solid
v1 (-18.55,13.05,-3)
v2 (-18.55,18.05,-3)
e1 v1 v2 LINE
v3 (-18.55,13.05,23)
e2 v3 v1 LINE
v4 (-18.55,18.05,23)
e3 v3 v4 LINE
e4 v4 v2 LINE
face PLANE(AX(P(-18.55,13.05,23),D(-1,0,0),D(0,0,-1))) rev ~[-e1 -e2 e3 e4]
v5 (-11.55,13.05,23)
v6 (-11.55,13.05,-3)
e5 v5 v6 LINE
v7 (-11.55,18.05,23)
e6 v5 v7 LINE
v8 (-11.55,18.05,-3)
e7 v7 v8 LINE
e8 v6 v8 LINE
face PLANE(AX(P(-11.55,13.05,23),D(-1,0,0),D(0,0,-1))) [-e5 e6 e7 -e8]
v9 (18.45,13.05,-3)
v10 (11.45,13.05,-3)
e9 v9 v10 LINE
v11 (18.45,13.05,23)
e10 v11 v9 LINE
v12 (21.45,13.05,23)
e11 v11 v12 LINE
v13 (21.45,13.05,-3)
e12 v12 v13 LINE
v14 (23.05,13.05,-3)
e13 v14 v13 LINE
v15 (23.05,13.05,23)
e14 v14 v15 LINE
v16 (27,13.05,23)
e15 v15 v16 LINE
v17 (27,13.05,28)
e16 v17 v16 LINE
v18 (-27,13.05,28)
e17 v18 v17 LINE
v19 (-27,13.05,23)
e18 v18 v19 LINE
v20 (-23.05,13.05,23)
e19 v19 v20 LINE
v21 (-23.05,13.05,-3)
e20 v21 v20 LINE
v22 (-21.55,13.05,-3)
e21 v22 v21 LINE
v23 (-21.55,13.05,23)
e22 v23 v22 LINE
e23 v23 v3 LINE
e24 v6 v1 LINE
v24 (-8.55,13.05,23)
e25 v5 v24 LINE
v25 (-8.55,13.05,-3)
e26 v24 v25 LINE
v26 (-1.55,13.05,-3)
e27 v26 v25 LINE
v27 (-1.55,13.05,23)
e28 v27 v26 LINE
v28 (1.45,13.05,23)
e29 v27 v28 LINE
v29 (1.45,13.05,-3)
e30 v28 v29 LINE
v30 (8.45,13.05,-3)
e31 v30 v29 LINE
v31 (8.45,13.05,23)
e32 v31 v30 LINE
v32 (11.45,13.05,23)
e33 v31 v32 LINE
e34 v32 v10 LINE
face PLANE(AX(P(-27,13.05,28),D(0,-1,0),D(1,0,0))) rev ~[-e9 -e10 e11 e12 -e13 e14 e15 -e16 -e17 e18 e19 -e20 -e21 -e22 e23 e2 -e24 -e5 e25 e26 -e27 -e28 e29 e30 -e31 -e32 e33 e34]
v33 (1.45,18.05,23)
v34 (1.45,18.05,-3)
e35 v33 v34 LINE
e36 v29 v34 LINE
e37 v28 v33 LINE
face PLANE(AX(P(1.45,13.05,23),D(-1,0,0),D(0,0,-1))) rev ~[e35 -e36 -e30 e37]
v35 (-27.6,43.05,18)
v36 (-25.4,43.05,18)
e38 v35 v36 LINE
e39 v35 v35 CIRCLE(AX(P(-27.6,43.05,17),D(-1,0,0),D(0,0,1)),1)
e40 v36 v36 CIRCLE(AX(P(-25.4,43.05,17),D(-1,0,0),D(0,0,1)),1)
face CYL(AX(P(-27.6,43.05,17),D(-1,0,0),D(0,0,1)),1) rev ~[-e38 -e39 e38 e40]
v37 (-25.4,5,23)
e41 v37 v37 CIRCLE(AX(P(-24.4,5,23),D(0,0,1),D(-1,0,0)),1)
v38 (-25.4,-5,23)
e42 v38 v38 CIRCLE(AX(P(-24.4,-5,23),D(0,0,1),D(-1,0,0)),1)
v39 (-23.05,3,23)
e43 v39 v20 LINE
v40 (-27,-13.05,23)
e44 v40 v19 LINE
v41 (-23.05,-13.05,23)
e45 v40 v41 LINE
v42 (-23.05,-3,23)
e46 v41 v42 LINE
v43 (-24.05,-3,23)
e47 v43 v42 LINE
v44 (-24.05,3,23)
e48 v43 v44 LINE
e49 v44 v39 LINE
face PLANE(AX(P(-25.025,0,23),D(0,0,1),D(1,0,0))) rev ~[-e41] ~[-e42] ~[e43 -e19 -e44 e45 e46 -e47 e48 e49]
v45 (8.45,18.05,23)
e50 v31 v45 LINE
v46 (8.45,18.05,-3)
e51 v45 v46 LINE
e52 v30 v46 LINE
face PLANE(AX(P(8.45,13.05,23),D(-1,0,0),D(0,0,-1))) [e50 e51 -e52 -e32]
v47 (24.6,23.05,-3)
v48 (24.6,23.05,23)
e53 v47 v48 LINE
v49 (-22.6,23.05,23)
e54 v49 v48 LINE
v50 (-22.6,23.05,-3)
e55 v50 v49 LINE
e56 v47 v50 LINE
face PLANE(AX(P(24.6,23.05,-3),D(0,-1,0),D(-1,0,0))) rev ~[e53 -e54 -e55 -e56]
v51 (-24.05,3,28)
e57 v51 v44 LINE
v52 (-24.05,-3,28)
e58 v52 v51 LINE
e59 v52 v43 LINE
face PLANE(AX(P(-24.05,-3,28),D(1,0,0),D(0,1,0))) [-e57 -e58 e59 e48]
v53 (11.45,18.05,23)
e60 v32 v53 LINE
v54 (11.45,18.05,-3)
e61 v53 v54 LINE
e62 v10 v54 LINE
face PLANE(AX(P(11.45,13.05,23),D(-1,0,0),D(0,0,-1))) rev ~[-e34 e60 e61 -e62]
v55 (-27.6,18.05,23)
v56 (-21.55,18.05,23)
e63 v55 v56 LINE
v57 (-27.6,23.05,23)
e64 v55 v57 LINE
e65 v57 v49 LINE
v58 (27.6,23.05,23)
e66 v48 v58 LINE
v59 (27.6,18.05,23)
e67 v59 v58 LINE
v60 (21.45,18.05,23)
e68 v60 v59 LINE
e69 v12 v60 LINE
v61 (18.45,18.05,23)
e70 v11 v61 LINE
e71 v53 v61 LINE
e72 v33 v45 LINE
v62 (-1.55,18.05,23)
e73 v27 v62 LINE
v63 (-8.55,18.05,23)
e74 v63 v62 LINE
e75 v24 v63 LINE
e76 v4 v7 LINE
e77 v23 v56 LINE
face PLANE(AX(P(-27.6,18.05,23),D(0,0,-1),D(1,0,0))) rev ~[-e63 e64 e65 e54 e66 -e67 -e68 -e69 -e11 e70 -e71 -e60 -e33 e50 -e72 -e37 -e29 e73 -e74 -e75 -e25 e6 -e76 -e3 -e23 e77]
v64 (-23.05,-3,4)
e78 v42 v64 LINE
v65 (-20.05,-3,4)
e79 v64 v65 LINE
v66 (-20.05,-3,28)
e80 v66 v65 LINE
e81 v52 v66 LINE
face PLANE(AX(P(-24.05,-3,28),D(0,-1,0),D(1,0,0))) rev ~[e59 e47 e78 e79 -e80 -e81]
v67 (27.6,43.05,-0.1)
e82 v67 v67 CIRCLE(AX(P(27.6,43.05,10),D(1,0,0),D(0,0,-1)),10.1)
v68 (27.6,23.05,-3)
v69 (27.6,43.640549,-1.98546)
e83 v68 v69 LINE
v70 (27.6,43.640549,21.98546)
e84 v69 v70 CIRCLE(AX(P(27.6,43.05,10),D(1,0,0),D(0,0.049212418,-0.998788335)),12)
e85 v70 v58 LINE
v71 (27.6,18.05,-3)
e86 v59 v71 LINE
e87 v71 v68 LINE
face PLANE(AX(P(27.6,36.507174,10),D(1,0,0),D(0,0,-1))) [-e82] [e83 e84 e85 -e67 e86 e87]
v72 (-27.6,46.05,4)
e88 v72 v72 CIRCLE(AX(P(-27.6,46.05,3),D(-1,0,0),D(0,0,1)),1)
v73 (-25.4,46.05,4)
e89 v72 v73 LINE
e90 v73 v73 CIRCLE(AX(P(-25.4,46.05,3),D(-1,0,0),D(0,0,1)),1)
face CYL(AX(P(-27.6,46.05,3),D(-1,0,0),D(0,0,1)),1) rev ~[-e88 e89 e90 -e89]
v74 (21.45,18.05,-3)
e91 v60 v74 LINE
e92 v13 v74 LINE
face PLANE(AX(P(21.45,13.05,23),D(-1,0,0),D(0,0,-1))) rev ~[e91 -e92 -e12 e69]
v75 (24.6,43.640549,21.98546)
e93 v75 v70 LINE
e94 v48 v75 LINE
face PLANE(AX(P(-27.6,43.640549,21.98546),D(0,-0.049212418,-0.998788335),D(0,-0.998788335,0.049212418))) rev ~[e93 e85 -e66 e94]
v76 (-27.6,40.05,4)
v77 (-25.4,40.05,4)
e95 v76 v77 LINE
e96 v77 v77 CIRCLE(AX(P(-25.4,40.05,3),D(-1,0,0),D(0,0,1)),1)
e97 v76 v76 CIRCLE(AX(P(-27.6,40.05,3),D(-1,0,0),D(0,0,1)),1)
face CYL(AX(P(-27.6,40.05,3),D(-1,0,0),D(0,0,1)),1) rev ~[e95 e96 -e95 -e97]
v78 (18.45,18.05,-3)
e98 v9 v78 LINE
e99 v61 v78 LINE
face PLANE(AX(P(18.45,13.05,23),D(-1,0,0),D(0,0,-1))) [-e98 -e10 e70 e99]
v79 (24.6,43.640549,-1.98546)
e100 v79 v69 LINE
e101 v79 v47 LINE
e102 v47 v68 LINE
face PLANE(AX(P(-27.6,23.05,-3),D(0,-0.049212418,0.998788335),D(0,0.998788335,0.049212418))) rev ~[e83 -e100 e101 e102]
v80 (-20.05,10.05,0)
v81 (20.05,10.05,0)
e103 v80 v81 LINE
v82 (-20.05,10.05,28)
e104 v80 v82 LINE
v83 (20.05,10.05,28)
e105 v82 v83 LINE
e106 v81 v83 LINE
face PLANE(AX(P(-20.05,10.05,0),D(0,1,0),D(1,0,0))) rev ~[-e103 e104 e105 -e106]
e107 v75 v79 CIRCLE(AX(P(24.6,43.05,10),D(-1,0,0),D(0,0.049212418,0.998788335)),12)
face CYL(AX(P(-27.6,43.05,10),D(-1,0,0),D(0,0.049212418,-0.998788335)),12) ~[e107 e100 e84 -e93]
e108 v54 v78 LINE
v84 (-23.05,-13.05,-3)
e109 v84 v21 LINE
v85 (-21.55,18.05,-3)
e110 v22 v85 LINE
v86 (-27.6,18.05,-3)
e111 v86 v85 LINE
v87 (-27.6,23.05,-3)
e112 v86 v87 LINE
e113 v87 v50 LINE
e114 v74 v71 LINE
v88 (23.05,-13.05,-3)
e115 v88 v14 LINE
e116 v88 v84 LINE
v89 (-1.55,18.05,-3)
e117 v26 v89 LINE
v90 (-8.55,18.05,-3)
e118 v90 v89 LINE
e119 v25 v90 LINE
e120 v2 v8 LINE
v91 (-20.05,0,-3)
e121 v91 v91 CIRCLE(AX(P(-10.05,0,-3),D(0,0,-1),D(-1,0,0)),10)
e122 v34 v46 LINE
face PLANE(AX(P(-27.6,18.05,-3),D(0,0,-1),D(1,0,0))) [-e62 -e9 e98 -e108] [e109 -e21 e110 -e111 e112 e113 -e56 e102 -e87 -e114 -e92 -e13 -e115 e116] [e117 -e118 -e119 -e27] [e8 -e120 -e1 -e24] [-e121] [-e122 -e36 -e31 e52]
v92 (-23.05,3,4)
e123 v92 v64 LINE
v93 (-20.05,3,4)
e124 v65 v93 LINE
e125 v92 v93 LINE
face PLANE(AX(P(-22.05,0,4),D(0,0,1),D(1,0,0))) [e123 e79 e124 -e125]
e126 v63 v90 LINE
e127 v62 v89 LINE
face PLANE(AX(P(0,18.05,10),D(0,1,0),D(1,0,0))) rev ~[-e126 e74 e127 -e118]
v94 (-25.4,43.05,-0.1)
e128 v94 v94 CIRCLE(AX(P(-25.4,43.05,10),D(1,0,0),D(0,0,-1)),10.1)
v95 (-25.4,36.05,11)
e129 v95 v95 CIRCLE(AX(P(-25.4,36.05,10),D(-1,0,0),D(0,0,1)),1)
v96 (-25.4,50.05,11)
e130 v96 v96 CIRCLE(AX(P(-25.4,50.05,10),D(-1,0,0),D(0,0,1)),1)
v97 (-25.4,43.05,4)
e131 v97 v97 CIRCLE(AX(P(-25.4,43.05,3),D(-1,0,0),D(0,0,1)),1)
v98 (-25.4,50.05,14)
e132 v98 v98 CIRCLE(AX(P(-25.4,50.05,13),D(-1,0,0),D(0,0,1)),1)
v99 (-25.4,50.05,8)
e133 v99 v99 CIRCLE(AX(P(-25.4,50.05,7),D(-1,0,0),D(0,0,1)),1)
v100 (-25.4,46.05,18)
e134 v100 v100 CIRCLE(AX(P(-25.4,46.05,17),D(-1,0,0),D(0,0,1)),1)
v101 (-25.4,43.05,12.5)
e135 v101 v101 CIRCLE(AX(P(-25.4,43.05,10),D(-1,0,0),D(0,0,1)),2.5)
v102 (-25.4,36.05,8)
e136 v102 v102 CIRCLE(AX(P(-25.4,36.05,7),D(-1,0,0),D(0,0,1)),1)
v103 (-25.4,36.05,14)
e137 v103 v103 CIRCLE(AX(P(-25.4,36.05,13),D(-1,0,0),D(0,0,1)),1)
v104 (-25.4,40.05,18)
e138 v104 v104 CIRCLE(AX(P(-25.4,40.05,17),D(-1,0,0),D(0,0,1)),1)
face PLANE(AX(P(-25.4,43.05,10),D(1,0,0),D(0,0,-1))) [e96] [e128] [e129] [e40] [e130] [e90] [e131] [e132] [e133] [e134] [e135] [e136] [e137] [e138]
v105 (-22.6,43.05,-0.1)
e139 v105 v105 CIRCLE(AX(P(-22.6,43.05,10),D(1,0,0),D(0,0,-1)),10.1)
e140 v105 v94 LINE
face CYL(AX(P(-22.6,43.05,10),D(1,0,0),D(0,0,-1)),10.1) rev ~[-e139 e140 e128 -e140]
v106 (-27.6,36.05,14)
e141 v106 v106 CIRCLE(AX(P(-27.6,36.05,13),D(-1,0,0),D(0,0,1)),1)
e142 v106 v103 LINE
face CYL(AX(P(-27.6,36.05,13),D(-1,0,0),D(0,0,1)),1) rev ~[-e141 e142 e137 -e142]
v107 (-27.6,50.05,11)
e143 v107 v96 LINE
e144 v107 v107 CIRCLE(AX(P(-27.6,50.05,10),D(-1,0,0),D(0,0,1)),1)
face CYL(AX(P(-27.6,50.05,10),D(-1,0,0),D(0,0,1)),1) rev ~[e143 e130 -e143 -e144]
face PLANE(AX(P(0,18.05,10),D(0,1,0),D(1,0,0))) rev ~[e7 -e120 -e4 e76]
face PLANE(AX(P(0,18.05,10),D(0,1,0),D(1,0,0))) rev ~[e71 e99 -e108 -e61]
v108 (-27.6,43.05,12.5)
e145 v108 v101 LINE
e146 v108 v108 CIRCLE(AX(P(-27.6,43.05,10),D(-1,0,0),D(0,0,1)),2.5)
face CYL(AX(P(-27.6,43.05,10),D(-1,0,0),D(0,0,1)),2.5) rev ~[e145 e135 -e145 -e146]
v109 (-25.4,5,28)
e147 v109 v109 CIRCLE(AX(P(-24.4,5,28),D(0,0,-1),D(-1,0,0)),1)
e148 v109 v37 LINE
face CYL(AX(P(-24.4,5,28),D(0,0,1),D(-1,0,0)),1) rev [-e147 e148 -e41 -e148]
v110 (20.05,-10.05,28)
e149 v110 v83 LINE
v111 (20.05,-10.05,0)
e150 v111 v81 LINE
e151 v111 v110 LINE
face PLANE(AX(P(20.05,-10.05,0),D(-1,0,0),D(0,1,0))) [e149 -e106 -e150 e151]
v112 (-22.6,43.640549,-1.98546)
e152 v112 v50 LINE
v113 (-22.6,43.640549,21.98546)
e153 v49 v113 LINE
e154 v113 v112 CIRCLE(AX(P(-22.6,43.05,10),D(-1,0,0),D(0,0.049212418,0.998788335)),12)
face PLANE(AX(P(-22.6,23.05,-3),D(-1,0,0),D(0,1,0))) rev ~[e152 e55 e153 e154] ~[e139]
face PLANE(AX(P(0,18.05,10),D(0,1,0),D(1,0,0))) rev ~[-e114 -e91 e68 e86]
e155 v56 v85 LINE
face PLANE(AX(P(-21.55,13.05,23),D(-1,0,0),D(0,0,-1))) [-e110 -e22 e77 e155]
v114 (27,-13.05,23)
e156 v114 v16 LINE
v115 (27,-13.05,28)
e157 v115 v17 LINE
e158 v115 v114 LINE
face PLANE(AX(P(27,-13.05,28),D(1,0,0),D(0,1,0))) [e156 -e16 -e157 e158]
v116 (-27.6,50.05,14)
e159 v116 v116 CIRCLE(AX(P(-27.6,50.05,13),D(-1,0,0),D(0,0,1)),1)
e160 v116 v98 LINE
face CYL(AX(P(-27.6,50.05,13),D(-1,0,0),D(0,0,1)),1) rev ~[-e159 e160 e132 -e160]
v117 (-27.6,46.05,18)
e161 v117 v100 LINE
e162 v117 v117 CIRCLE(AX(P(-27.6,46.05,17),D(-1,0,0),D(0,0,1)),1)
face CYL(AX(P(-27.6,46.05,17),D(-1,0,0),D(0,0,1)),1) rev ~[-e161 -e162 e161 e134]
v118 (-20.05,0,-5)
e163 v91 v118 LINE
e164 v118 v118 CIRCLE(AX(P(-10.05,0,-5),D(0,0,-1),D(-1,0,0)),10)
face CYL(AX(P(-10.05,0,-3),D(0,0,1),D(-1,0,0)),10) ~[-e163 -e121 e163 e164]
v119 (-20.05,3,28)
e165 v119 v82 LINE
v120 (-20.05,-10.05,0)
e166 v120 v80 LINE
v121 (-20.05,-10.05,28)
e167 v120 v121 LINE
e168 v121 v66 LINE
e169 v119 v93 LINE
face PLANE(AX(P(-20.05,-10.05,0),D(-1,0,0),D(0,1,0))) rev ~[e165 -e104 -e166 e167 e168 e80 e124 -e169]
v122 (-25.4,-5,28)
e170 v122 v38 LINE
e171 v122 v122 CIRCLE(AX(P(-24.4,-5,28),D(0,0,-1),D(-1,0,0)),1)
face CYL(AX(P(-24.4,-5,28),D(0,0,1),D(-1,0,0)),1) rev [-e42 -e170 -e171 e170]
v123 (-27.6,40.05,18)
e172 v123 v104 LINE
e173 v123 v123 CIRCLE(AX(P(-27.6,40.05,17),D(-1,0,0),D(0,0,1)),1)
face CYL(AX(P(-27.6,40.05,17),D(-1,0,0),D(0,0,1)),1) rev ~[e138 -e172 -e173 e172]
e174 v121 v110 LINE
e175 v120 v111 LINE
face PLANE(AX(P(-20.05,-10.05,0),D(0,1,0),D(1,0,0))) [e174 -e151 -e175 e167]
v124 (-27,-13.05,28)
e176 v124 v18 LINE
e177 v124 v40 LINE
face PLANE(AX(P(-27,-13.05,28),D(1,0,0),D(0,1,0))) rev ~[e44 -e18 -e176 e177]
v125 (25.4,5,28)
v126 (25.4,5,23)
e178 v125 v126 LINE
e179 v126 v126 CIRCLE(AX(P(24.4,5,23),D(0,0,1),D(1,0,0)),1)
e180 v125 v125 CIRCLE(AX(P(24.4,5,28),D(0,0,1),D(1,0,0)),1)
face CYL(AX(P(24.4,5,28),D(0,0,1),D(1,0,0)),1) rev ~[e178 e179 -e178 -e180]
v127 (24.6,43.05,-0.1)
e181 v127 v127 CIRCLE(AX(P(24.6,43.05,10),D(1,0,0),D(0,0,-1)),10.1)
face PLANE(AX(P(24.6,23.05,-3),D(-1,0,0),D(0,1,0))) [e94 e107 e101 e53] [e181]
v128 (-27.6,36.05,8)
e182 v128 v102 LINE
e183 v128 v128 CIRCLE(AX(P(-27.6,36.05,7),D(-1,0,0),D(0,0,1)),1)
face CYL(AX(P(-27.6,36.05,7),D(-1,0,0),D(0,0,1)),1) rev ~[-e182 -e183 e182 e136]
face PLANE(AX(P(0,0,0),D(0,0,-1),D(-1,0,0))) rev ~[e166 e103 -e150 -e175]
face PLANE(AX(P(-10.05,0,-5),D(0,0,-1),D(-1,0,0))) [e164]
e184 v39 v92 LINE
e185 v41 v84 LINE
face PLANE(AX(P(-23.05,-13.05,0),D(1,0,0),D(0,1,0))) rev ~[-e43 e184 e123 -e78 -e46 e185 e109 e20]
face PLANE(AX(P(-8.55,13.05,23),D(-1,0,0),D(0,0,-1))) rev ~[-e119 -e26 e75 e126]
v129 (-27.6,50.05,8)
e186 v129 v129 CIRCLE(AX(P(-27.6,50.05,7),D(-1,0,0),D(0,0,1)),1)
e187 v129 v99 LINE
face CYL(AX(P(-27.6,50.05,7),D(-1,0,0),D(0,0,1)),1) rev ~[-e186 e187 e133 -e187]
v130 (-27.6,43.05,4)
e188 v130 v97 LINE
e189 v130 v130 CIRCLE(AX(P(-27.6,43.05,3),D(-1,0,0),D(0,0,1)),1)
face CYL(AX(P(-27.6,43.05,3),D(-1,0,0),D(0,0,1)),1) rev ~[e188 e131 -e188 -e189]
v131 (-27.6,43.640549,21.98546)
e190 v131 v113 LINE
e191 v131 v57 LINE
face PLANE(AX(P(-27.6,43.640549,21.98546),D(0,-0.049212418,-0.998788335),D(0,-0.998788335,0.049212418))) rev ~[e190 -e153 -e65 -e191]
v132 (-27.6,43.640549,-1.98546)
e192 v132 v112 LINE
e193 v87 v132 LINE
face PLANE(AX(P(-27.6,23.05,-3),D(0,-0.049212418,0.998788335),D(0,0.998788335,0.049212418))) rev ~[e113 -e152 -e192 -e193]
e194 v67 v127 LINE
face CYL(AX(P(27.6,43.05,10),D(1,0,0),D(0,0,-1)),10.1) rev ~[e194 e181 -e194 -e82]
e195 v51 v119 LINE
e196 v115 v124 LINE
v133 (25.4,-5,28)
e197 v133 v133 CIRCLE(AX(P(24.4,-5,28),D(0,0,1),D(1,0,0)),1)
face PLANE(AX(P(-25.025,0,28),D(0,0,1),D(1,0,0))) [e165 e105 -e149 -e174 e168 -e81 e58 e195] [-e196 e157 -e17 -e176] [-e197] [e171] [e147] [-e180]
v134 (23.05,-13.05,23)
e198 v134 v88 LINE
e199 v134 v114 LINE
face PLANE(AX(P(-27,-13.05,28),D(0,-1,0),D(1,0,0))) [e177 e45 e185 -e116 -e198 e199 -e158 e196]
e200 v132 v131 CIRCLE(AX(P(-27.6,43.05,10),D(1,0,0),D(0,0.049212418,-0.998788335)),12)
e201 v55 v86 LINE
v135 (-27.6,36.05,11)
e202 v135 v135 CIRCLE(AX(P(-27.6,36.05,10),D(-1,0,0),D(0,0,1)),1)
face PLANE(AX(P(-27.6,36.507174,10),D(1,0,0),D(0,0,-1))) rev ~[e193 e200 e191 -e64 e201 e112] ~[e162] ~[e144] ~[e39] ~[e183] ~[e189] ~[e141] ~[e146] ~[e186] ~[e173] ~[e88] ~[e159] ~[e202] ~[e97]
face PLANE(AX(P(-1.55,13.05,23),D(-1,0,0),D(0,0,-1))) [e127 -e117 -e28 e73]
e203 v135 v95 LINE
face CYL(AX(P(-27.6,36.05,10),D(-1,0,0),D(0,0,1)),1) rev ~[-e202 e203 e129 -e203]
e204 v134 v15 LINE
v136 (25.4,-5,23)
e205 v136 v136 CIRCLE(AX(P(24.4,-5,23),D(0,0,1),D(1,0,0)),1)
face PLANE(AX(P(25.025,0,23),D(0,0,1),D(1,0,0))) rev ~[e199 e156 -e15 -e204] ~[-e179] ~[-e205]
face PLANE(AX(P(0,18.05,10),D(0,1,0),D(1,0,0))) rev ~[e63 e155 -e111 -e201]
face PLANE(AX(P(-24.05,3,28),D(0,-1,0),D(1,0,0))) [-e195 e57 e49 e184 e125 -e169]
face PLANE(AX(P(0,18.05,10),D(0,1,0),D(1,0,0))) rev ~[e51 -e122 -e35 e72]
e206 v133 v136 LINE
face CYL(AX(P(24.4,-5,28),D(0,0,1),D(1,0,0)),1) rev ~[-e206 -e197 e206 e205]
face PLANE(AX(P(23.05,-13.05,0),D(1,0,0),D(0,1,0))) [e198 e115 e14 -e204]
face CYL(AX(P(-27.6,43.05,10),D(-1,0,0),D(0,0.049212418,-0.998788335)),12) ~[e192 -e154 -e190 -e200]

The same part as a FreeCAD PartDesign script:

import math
import FreeCAD as App
import Part
import Sketcher

V = App.Vector
Q = App.Units.Quantity

doc = App.newDocument("Part")
params = doc.addObject("Spreadsheet::Sheet", "Params")
for row, (alias, value) in enumerate([
    ("sketch1_width", "46.1 mm"),
    ("sketch1_width2", "40.1 mm"),
    ("sketch1_height", "26.1 mm"),
    ("sketch1_height2", "20.1 mm"),
    ("pad1_length", "28 mm"),
    ("sketch2_width", "46.1 mm"),
    ("sketch2_height", "26.1 mm"),
    ("pad2_length", "3 mm"),
    ("sketch3_height", "26.1 mm"),
    ("sketch3_width", "3.95 mm"),
    ("pad3_length", "5 mm"),
    ("sketch4_diameter", "2 mm"),
    ("pocket1_length", "13 mm"),
    ("sketch5_diameter", "20 mm"),
    ("pad4_length", "2 mm"),
    ("sketch6_width", "3 mm"),
    ("sketch6_height", "26 mm"),
    ("pad5_length", "5 mm"),
    ("sketch7_height", "26 mm"),
    ("sketch7_width", "55.2 mm"),
    ("pad6_length", "5 mm"),
    ("sketch8_radius", "12 mm"),
    ("sketch8_height", "26 mm"),
    ("pad7_length", "55.2 mm"),
    ("sketch9_diameter", "5 mm"),
    ("sketch9_diameter2", "2 mm"),
    ("pocket2_length", "13.2 mm"),
    ("sketch10_diameter", "20.2 mm"),
    ("pocket3_length", "13.2 mm"),
    ("sketch11_height", "32 mm"),
    ("sketch11_width", "47.2 mm"),
    ("pocket4_length", "43.2 mm"),
    ("sketch12_diameter", "20.2 mm"),
    ("pocket5_length", "2.8 mm"),
    ("sketch13_width", "4 mm"),
    ("sketch13_height", "6 mm"),
    ("pocket6_length", "24 mm"),
], start=1):
    params.set(f"A{row}", alias)
    params.set(f"B{row}", "=" + value)
    params.setAlias(f"B{row}", alias)

body = doc.addObject("PartDesign::Body", "Body")

sketch1 = body.newObject("Sketcher::SketchObject", "Sketch")
sketch1.AttachmentSupport = (doc.getObject("XY_Plane"), [""])
sketch1.MapMode = "FlatFace"
sketch1.addGeometry(Part.LineSegment(V(-23, 13, 0), V(-23, -13, 0)), False)
sketch1.addGeometry(Part.LineSegment(V(-23, -13, 0), V(23, -13, 0)), False)
sketch1.addGeometry(Part.LineSegment(V(23, -13, 0), V(23, 13, 0)), False)
sketch1.addGeometry(Part.LineSegment(V(23, 13, 0), V(-23, 13, 0)), False)
sketch1.addGeometry(Part.LineSegment(V(20, -10, 0), V(-20, -10, 0)), False)
sketch1.addGeometry(Part.LineSegment(V(-20, -10, 0), V(-20, 10, 0)), False)
sketch1.addGeometry(Part.LineSegment(V(-20, 10, 0), V(20, 10, 0)), False)
sketch1.addGeometry(Part.LineSegment(V(20, 10, 0), V(20, -10, 0)), False)
sketch1.addConstraint(Sketcher.Constraint("Coincident", 0, 2, 1, 1))
sketch1.addConstraint(Sketcher.Constraint("Coincident", 1, 2, 2, 1))
sketch1.addConstraint(Sketcher.Constraint("Coincident", 2, 2, 3, 1))
sketch1.addConstraint(Sketcher.Constraint("Coincident", 3, 2, 0, 1))
sketch1.addConstraint(Sketcher.Constraint("Coincident", 4, 2, 5, 1))
sketch1.addConstraint(Sketcher.Constraint("Coincident", 5, 2, 6, 1))
sketch1.addConstraint(Sketcher.Constraint("Coincident", 6, 2, 7, 1))
sketch1.addConstraint(Sketcher.Constraint("Coincident", 7, 2, 4, 1))
sketch1.addConstraint(Sketcher.Constraint("Vertical", 0))
sketch1.addConstraint(Sketcher.Constraint("Horizontal", 1))
sketch1.addConstraint(Sketcher.Constraint("Vertical", 2))
sketch1.addConstraint(Sketcher.Constraint("Horizontal", 3))
sketch1.addConstraint(Sketcher.Constraint("Horizontal", 4))
sketch1.addConstraint(Sketcher.Constraint("Vertical", 5))
sketch1.addConstraint(Sketcher.Constraint("Horizontal", 6))
sketch1.addConstraint(Sketcher.Constraint("Vertical", 7))
sketch1.addConstraint(Sketcher.Constraint("Symmetric", 0, 2, 2, 2, -1, 1))
sketch1.addConstraint(Sketcher.Constraint("Symmetric", 4, 2, 6, 2, -1, 1))
sketch1.addConstraint(Sketcher.Constraint("DistanceX", 1, 1, 1, 2, Q("46.1 mm")))
sketch1.addConstraint(Sketcher.Constraint("DistanceX", 4, 2, 4, 1, Q("40.1 mm")))
sketch1.addConstraint(Sketcher.Constraint("DistanceY", 0, 2, 0, 1, Q("26.1 mm")))
sketch1.addConstraint(Sketcher.Constraint("DistanceY", 5, 1, 5, 2, Q("20.1 mm")))
sketch1.setExpression("Constraints[18]", "Params.sketch1_width")
sketch1.setExpression("Constraints[19]", "Params.sketch1_width2")
sketch1.setExpression("Constraints[20]", "Params.sketch1_height")
sketch1.setExpression("Constraints[21]", "Params.sketch1_height2")
pad1 = body.newObject("PartDesign::Pad", "Pad")
pad1.Profile = sketch1
pad1.setExpression("Length", "Params.pad1_length")

sketch2 = body.newObject("Sketcher::SketchObject", "Sketch001")
sketch2.AttachmentSupport = (doc.getObject("XY_Plane"), [""])
sketch2.MapMode = "FlatFace"
sketch2.addGeometry(Part.LineSegment(V(23, 13, 0), V(23, -13, 0)), False)
sketch2.addGeometry(Part.LineSegment(V(23, -13, 0), V(-23, -13, 0)), False)
sketch2.addGeometry(Part.LineSegment(V(-23, -13, 0), V(-23, 13, 0)), False)
sketch2.addGeometry(Part.LineSegment(V(-23, 13, 0), V(23, 13, 0)), False)
sketch2.addConstraint(Sketcher.Constraint("Coincident", 0, 2, 1, 1))
sketch2.addConstraint(Sketcher.Constraint("Coincident", 1, 2, 2, 1))
sketch2.addConstraint(Sketcher.Constraint("Coincident", 2, 2, 3, 1))
sketch2.addConstraint(Sketcher.Constraint("Coincident", 3, 2, 0, 1))
sketch2.addConstraint(Sketcher.Constraint("Vertical", 0))
sketch2.addConstraint(Sketcher.Constraint("Horizontal", 1))
sketch2.addConstraint(Sketcher.Constraint("Vertical", 2))
sketch2.addConstraint(Sketcher.Constraint("Horizontal", 3))
sketch2.addConstraint(Sketcher.Constraint("Symmetric", 0, 2, 2, 2, -1, 1))
sketch2.addConstraint(Sketcher.Constraint("DistanceX", 1, 2, 1, 1, Q("46.1 mm")))
sketch2.addConstraint(Sketcher.Constraint("DistanceY", 0, 2, 0, 1, Q("26.1 mm")))
sketch2.setExpression("Constraints[9]", "Params.sketch2_width")
sketch2.setExpression("Constraints[10]", "Params.sketch2_height")
pad2 = body.newObject("PartDesign::Pad", "Pad001")
pad2.Profile = sketch2
pad2.setExpression("Length", "Params.pad2_length")
pad2.Reversed = True

sketch3 = body.newObject("Sketcher::SketchObject", "Sketch002")
sketch3.AttachmentSupport = (doc.getObject("XY_Plane"), [""])
sketch3.MapMode = "FlatFace"
sketch3.AttachmentOffset = App.Placement(V(0, 0, 28), App.Rotation())
sketch3.addGeometry(Part.LineSegment(V(-27, 13.1, 0), V(-27, -13.1, 0)), False)
sketch3.addGeometry(Part.LineSegment(V(-27, -13.1, 0), V(-23.1, -13.1, 0)), False)
sketch3.addGeometry(Part.LineSegment(V(-23.1, -13.1, 0), V(-23.1, 13.1, 0)), False)
sketch3.addGeometry(Part.LineSegment(V(-23.1, 13.1, 0), V(-27, 13.1, 0)), False)
sketch3.addGeometry(Part.LineSegment(V(23.1, 13.1, 0), V(23.1, -13.1, 0)), False)
sketch3.addGeometry(Part.LineSegment(V(23.1, -13.1, 0), V(27, -13.1, 0)), False)
sketch3.addGeometry(Part.LineSegment(V(27, -13.1, 0), V(27, 13.1, 0)), False)
sketch3.addGeometry(Part.LineSegment(V(27, 13.1, 0), V(23.1, 13.1, 0)), False)
sketch3.addConstraint(Sketcher.Constraint("Coincident", 0, 2, 1, 1))
sketch3.addConstraint(Sketcher.Constraint("Coincident", 1, 2, 2, 1))
sketch3.addConstraint(Sketcher.Constraint("Coincident", 2, 2, 3, 1))
sketch3.addConstraint(Sketcher.Constraint("Coincident", 3, 2, 0, 1))
sketch3.addConstraint(Sketcher.Constraint("Coincident", 4, 2, 5, 1))
sketch3.addConstraint(Sketcher.Constraint("Coincident", 5, 2, 6, 1))
sketch3.addConstraint(Sketcher.Constraint("Coincident", 6, 2, 7, 1))
sketch3.addConstraint(Sketcher.Constraint("Coincident", 7, 2, 4, 1))
sketch3.addConstraint(Sketcher.Constraint("Vertical", 0))
sketch3.addConstraint(Sketcher.Constraint("Horizontal", 1))
sketch3.addConstraint(Sketcher.Constraint("Vertical", 2))
sketch3.addConstraint(Sketcher.Constraint("Horizontal", 3))
sketch3.addConstraint(Sketcher.Constraint("Vertical", 4))
sketch3.addConstraint(Sketcher.Constraint("Horizontal", 5))
sketch3.addConstraint(Sketcher.Constraint("Vertical", 6))
sketch3.addConstraint(Sketcher.Constraint("Horizontal", 7))
sketch3.addConstraint(Sketcher.Constraint("Symmetric", 2, 2, 4, 2, -1, 1))
sketch3.addConstraint(Sketcher.Constraint("Symmetric", 0, 2, 6, 2, -1, 1))
sketch3.addConstraint(Sketcher.Constraint("Horizontal", 1, 2, 4, 2))
sketch3.addConstraint(Sketcher.Constraint("DistanceY", 0, 2, 0, 1, Q("26.1 mm")))
sketch3.addConstraint(Sketcher.Constraint("DistanceX", 0, 2, -1, 1, Q("27 mm")))
sketch3.addConstraint(Sketcher.Constraint("DistanceX", 1, 1, 1, 2, Q("3.95 mm")))
sketch3.setExpression("Constraints[19]", "Params.sketch3_height")
sketch3.setExpression("Constraints[21]", "Params.sketch3_width")
pad3 = body.newObject("PartDesign::Pad", "Pad002")
pad3.Profile = sketch3
pad3.setExpression("Length", "Params.pad3_length")
pad3.Reversed = True

sketch4 = body.newObject("Sketcher::SketchObject", "Sketch003")
sketch4.AttachmentSupport = (doc.getObject("XY_Plane"), [""])
sketch4.MapMode = "FlatFace"
sketch4.AttachmentOffset = App.Placement(V(0, 0, 28), App.Rotation())
sketch4.addGeometry(Part.Circle(V(24.4, 5, 0), V(0, 0, 1), 1), False)
sketch4.addGeometry(Part.Circle(V(24.4, -5, 0), V(0, 0, 1), 1), False)
sketch4.addConstraint(Sketcher.Constraint("Equal", 0, 1))
sketch4.addConstraint(Sketcher.Constraint("Symmetric", 0, 3, 1, 3, -1))
sketch4.addConstraint(Sketcher.Constraint("Diameter", 0, Q("2 mm")))
sketch4.addConstraint(Sketcher.Constraint("DistanceY", -1, 1, 0, 3, Q("5 mm")))
sketch4.addConstraint(Sketcher.Constraint("DistanceX", -1, 1, 0, 3, Q("24.4 mm")))
sketch4.setExpression("Constraints[2]", "Params.sketch4_diameter")
pocket1 = body.newObject("PartDesign::Pocket", "Pocket")
pocket1.Profile = sketch4
pocket1.setExpression("Length", "Params.pocket1_length")
doc.recompute()

mirrored = body.newObject("PartDesign::Mirrored", "Mirrored")
mirrored.Originals = [pocket1]
mirrored.MirrorPlane = (doc.getObject("YZ_Plane"), [""])
body.Tip = mirrored

sketch5 = body.newObject("Sketcher::SketchObject", "Sketch004")
sketch5.AttachmentSupport = (doc.getObject("XY_Plane"), [""])
sketch5.MapMode = "FlatFace"
sketch5.AttachmentOffset = App.Placement(V(0, 0, -3), App.Rotation())
sketch5.addGeometry(Part.Circle(V(-10, 0, 0), V(0, 0, 1), 10), False)
sketch5.addConstraint(Sketcher.Constraint("PointOnObject", 0, 3, -1))
sketch5.addConstraint(Sketcher.Constraint("Diameter", 0, Q("20 mm")))
sketch5.addConstraint(Sketcher.Constraint("DistanceX", 0, 3, -1, 1, Q("10.05 mm")))
sketch5.setExpression("Constraints[1]", "Params.sketch5_diameter")
pad4 = body.newObject("PartDesign::Pad", "Pad003")
pad4.Profile = sketch5
pad4.setExpression("Length", "Params.pad4_length")
pad4.Reversed = True

sketch6 = body.newObject("Sketcher::SketchObject", "Sketch005")
sketch6.AttachmentSupport = (doc.getObject("XZ_Plane"), [""])
sketch6.MapMode = "FlatFace"
sketch6.AttachmentOffset = App.Placement(V(0, 0, -13.05), App.Rotation())
sketch6.addGeometry(Part.LineSegment(V(-21.6, -3, 0), V(-21.6, 23, 0)), False)
sketch6.addGeometry(Part.LineSegment(V(-21.6, 23, 0), V(-18.6, 23, 0)), False)
sketch6.addGeometry(Part.LineSegment(V(-18.6, 23, 0), V(-18.6, -3, 0)), False)
sketch6.addGeometry(Part.LineSegment(V(-18.6, -3, 0), V(-21.6, -3, 0)), False)
sketch6.addGeometry(Part.LineSegment(V(-11.6, -3, 0), V(-11.6, 23, 0)), False)
sketch6.addGeometry(Part.LineSegment(V(-11.6, 23, 0), V(-8.6, 23, 0)), False)
sketch6.addGeometry(Part.LineSegment(V(-8.6, 23, 0), V(-8.6, -3, 0)), False)
sketch6.addGeometry(Part.LineSegment(V(-8.6, -3, 0), V(-11.6, -3, 0)), False)
sketch6.addGeometry(Part.LineSegment(V(-1.6, -3, 0), V(-1.6, 23, 0)), False)
sketch6.addGeometry(Part.LineSegment(V(-1.6, 23, 0), V(1.4, 23, 0)), False)
sketch6.addGeometry(Part.LineSegment(V(1.4, 23, 0), V(1.4, -3, 0)), False)
sketch6.addGeometry(Part.LineSegment(V(1.4, -3, 0), V(-1.6, -3, 0)), False)
sketch6.addGeometry(Part.LineSegment(V(8.4, -3, 0), V(8.4, 23, 0)), False)
sketch6.addGeometry(Part.LineSegment(V(8.4, 23, 0), V(11.4, 23, 0)), False)
sketch6.addGeometry(Part.LineSegment(V(11.4, 23, 0), V(11.4, -3, 0)), False)
sketch6.addGeometry(Part.LineSegment(V(11.4, -3, 0), V(8.4, -3, 0)), False)
sketch6.addGeometry(Part.LineSegment(V(18.4, -3, 0), V(18.4, 23, 0)), False)
sketch6.addGeometry(Part.LineSegment(V(18.4, 23, 0), V(21.4, 23, 0)), False)
sketch6.addGeometry(Part.LineSegment(V(21.4, 23, 0), V(21.4, -3, 0)), False)
sketch6.addGeometry(Part.LineSegment(V(21.4, -3, 0), V(18.4, -3, 0)), False)
sketch6.addConstraint(Sketcher.Constraint("Coincident", 0, 2, 1, 1))
sketch6.addConstraint(Sketcher.Constraint("Coincident", 1, 2, 2, 1))
sketch6.addConstraint(Sketcher.Constraint("Coincident", 2, 2, 3, 1))
sketch6.addConstraint(Sketcher.Constraint("Coincident", 3, 2, 0, 1))
sketch6.addConstraint(Sketcher.Constraint("Coincident", 4, 2, 5, 1))
sketch6.addConstraint(Sketcher.Constraint("Coincident", 5, 2, 6, 1))
sketch6.addConstraint(Sketcher.Constraint("Coincident", 6, 2, 7, 1))
sketch6.addConstraint(Sketcher.Constraint("Coincident", 7, 2, 4, 1))
sketch6.addConstraint(Sketcher.Constraint("Coincident", 8, 2, 9, 1))
sketch6.addConstraint(Sketcher.Constraint("Coincident", 9, 2, 10, 1))
sketch6.addConstraint(Sketcher.Constraint("Coincident", 10, 2, 11, 1))
sketch6.addConstraint(Sketcher.Constraint("Coincident", 11, 2, 8, 1))
sketch6.addConstraint(Sketcher.Constraint("Coincident", 12, 2, 13, 1))
sketch6.addConstraint(Sketcher.Constraint("Coincident", 13, 2, 14, 1))
sketch6.addConstraint(Sketcher.Constraint("Coincident", 14, 2, 15, 1))
sketch6.addConstraint(Sketcher.Constraint("Coincident", 15, 2, 12, 1))
sketch6.addConstraint(Sketcher.Constraint("Coincident", 16, 2, 17, 1))
sketch6.addConstraint(Sketcher.Constraint("Coincident", 17, 2, 18, 1))
sketch6.addConstraint(Sketcher.Constraint("Coincident", 18, 2, 19, 1))
sketch6.addConstraint(Sketcher.Constraint("Coincident", 19, 2, 16, 1))
sketch6.addConstraint(Sketcher.Constraint("Vertical", 0))
sketch6.addConstraint(Sketcher.Constraint("Horizontal", 1))
sketch6.addConstraint(Sketcher.Constraint("Vertical", 2))
sketch6.addConstraint(Sketcher.Constraint("Horizontal", 3))
sketch6.addConstraint(Sketcher.Constraint("Vertical", 4))
sketch6.addConstraint(Sketcher.Constraint("Horizontal", 5))
sketch6.addConstraint(Sketcher.Constraint("Vertical", 6))
sketch6.addConstraint(Sketcher.Constraint("Horizontal", 7))
sketch6.addConstraint(Sketcher.Constraint("Vertical", 8))
sketch6.addConstraint(Sketcher.Constraint("Horizontal", 9))
sketch6.addConstraint(Sketcher.Constraint("Vertical", 10))
sketch6.addConstraint(Sketcher.Constraint("Horizontal", 11))
sketch6.addConstraint(Sketcher.Constraint("Vertical", 12))
sketch6.addConstraint(Sketcher.Constraint("Horizontal", 13))
sketch6.addConstraint(Sketcher.Constraint("Vertical", 14))
sketch6.addConstraint(Sketcher.Constraint("Horizontal", 15))
sketch6.addConstraint(Sketcher.Constraint("Vertical", 16))
sketch6.addConstraint(Sketcher.Constraint("Horizontal", 17))
sketch6.addConstraint(Sketcher.Constraint("Vertical", 18))
sketch6.addConstraint(Sketcher.Constraint("Horizontal", 19))
sketch6.addConstraint(Sketcher.Constraint("Horizontal", 1, 2, 4, 2))
sketch6.addConstraint(Sketcher.Constraint("Horizontal", 3, 2, 6, 2))
sketch6.addConstraint(Sketcher.Constraint("Horizontal", 5, 2, 8, 2))
sketch6.addConstraint(Sketcher.Constraint("Horizontal", 7, 2, 10, 2))
sketch6.addConstraint(Sketcher.Constraint("Horizontal", 9, 2, 12, 2))
sketch6.addConstraint(Sketcher.Constraint("Horizontal", 11, 2, 14, 2))
sketch6.addConstraint(Sketcher.Constraint("Horizontal", 13, 2, 16, 2))
sketch6.addConstraint(Sketcher.Constraint("Horizontal", 15, 2, 18, 2))
sketch6.addConstraint(Sketcher.Constraint("Equal", 3, 5))
sketch6.addConstraint(Sketcher.Constraint("Equal", 7, 9))
sketch6.addConstraint(Sketcher.Constraint("Equal", 11, 13))
sketch6.addConstraint(Sketcher.Constraint("Equal", 15, 17))
sketch6.addConstraint(Sketcher.Constraint("DistanceX", 1, 1, 1, 2, Q("3 mm")))
sketch6.addConstraint(Sketcher.Constraint("DistanceY", 0, 1, 0, 2, Q("26 mm")))
sketch6.addConstraint(Sketcher.Constraint("DistanceY", -1, 1, 0, 2, Q("23 mm")))
sketch6.addConstraint(Sketcher.Constraint("DistanceX", 1, 2, 4, 2, Q("7 mm")))
sketch6.addConstraint(Sketcher.Constraint("DistanceX", 5, 2, 8, 2, Q("7 mm")))
sketch6.addConstraint(Sketcher.Constraint("DistanceX", 9, 2, 12, 2, Q("7 mm")))
sketch6.addConstraint(Sketcher.Constraint("DistanceX", 13, 2, 16, 2, Q("7 mm")))
sketch6.addConstraint(Sketcher.Constraint("DistanceX", 0, 2, -1, 1, Q("21.55 mm")))
sketch6.setExpression("Constraints[52]", "Params.sketch6_width")
sketch6.setExpression("Constraints[53]", "Params.sketch6_height")
pad5 = body.newObject("PartDesign::Pad", "Pad004")
pad5.Profile = sketch6
pad5.setExpression("Length", "Params.pad5_length")
pad5.Reversed = True

sketch7 = body.newObject("Sketcher::SketchObject", "Sketch006")
sketch7.AttachmentSupport = (doc.getObject("XZ_Plane"), [""])
sketch7.MapMode = "FlatFace"
sketch7.AttachmentOffset = App.Placement(V(0, 0, -18.05), App.Rotation())
sketch7.addGeometry(Part.LineSegment(V(-28, -3, 0), V(-28, 23, 0)), False)
sketch7.addGeometry(Part.LineSegment(V(-28, 23, 0), V(28, 23, 0)), False)
sketch7.addGeometry(Part.LineSegment(V(28, 23, 0), V(28, -3, 0)), False)
sketch7.addGeometry(Part.LineSegment(V(28, -3, 0), V(-28, -3, 0)), False)
sketch7.addConstraint(Sketcher.Constraint("Coincident", 0, 2, 1, 1))
sketch7.addConstraint(Sketcher.Constraint("Coincident", 1, 2, 2, 1))
sketch7.addConstraint(Sketcher.Constraint("Coincident", 2, 2, 3, 1))
sketch7.addConstraint(Sketcher.Constraint("Coincident", 3, 2, 0, 1))
sketch7.addConstraint(Sketcher.Constraint("Vertical", 0))
sketch7.addConstraint(Sketcher.Constraint("Horizontal", 1))
sketch7.addConstraint(Sketcher.Constraint("Vertical", 2))
sketch7.addConstraint(Sketcher.Constraint("Horizontal", 3))
sketch7.addConstraint(Sketcher.Constraint("DistanceY", 0, 1, 0, 2, Q("26 mm")))
sketch7.addConstraint(Sketcher.Constraint("DistanceX", 1, 1, 1, 2, Q("55.2 mm")))
sketch7.addConstraint(Sketcher.Constraint("DistanceY", -1, 1, 0, 2, Q("23 mm")))
sketch7.addConstraint(Sketcher.Constraint("DistanceX", 0, 2, -1, 1, Q("27.6 mm")))
sketch7.setExpression("Constraints[8]", "Params.sketch7_height")
sketch7.setExpression("Constraints[9]", "Params.sketch7_width")
pad6 = body.newObject("PartDesign::Pad", "Pad005")
pad6.Profile = sketch7
pad6.setExpression("Length", "Params.pad6_length")
pad6.Reversed = True

sketch8 = body.newObject("Sketcher::SketchObject", "Sketch007")
sketch8.AttachmentSupport = (doc.getObject("YZ_Plane"), [""])
sketch8.MapMode = "FlatFace"
sketch8.AttachmentOffset = App.Placement(V(0, 0, -27.6), App.Rotation())
sketch8.addGeometry(Part.LineSegment(V(44, -2, 0), V(23, -3, 0)), False)
sketch8.addGeometry(Part.LineSegment(V(23, -3, 0), V(23, 23, 0)), False)
sketch8.addGeometry(Part.LineSegment(V(23, 23, 0), V(44, 22, 0)), False)
sketch8.addGeometry(Part.ArcOfCircle(Part.Circle(V(43, 10, 0), V(0, 0, 1), 12), math.radians(-87), math.radians(87)), False)
sketch8.addConstraint(Sketcher.Constraint("Coincident", 0, 2, 1, 1))
sketch8.addConstraint(Sketcher.Constraint("Coincident", 1, 2, 2, 1))
sketch8.addConstraint(Sketcher.Constraint("Tangent", 2, 2, 3, 2))
sketch8.addConstraint(Sketcher.Constraint("Tangent", 3, 1, 0, 1))
sketch8.addConstraint(Sketcher.Constraint("Vertical", 1))
sketch8.addConstraint(Sketcher.Constraint("Vertical", 2, 2, 3, 1))
sketch8.addConstraint(Sketcher.Constraint("Radius", 3, Q("12 mm")))
sketch8.addConstraint(Sketcher.Constraint("DistanceY", 1, 1, 1, 2, Q("26 mm")))
sketch8.addConstraint(Sketcher.Constraint("DistanceY", -1, 1, 3, 3, Q("10 mm")))
sketch8.addConstraint(Sketcher.Constraint("DistanceX", 0, 2, 3, 3, Q("20 mm")))
sketch8.addConstraint(Sketcher.Constraint("DistanceX", -1, 1, 3, 3, Q("43.05 mm")))
sketch8.setExpression("Constraints[6]", "Params.sketch8_radius")
sketch8.setExpression("Constraints[7]", "Params.sketch8_height")
pad7 = body.newObject("PartDesign::Pad", "Pad006")
pad7.Profile = sketch8
pad7.setExpression("Length", "Params.pad7_length")

sketch9 = body.newObject("Sketcher::SketchObject", "Sketch008")
sketch9.AttachmentSupport = (doc.getObject("YZ_Plane"), [""])
sketch9.MapMode = "FlatFace"
sketch9.AttachmentOffset = App.Placement(V(0, 0, -27.6), App.Rotation())
sketch9.addGeometry(Part.Circle(V(43, 10, 0), V(0, 0, 1), 2.5), False)
sketch9.addGeometry(Part.Circle(V(50, 10, 0), V(0, 0, 1), 1), False)
sketch9.addGeometry(Part.Circle(V(50, 13, 0), V(0, 0, 1), 1), False)
sketch9.addGeometry(Part.Circle(V(50, 7, 0), V(0, 0, 1), 1), False)
sketch9.addGeometry(Part.Circle(V(46, 17, 0), V(0, 0, 1), 1), False)
sketch9.addGeometry(Part.Circle(V(43, 17, 0), V(0, 0, 1), 1), False)
sketch9.addGeometry(Part.Circle(V(40, 17, 0), V(0, 0, 1), 1), False)
sketch9.addGeometry(Part.Circle(V(36, 13, 0), V(0, 0, 1), 1), False)
sketch9.addGeometry(Part.Circle(V(36, 10, 0), V(0, 0, 1), 1), False)
sketch9.addGeometry(Part.Circle(V(36, 7, 0), V(0, 0, 1), 1), False)
sketch9.addGeometry(Part.Circle(V(40, 3, 0), V(0, 0, 1), 1), False)
sketch9.addGeometry(Part.Circle(V(43, 3, 0), V(0, 0, 1), 1), False)
sketch9.addGeometry(Part.Circle(V(46, 3, 0), V(0, 0, 1), 1), False)
sketch9.addConstraint(Sketcher.Constraint("Equal", 1, 2))
sketch9.addConstraint(Sketcher.Constraint("Equal", 2, 3))
sketch9.addConstraint(Sketcher.Constraint("Equal", 3, 4))
sketch9.addConstraint(Sketcher.Constraint("Equal", 4, 5))
sketch9.addConstraint(Sketcher.Constraint("Equal", 5, 6))
sketch9.addConstraint(Sketcher.Constraint("Equal", 6, 7))
sketch9.addConstraint(Sketcher.Constraint("Equal", 7, 8))
sketch9.addConstraint(Sketcher.Constraint("Equal", 8, 9))
sketch9.addConstraint(Sketcher.Constraint("Equal", 9, 10))
sketch9.addConstraint(Sketcher.Constraint("Equal", 10, 11))
sketch9.addConstraint(Sketcher.Constraint("Equal", 11, 12))
sketch9.addConstraint(Sketcher.Constraint("Horizontal", 0, 3, 1, 3))
sketch9.addConstraint(Sketcher.Constraint("Horizontal", 4, 3, 5, 3))
sketch9.addConstraint(Sketcher.Constraint("Horizontal", 5, 3, 6, 3))
sketch9.addConstraint(Sketcher.Constraint("Horizontal", 2, 3, 7, 3))
sketch9.addConstraint(Sketcher.Constraint("Horizontal", 1, 3, 8, 3))
sketch9.addConstraint(Sketcher.Constraint("Horizontal", 3, 3, 9, 3))
sketch9.addConstraint(Sketcher.Constraint("Horizontal", 10, 3, 11, 3))
sketch9.addConstraint(Sketcher.Constraint("Horizontal", 11, 3, 12, 3))
sketch9.addConstraint(Sketcher.Constraint("Vertical", 1, 3, 2, 3))
sketch9.addConstraint(Sketcher.Constraint("Vertical", 2, 3, 3, 3))
sketch9.addConstraint(Sketcher.Constraint("Vertical", 0, 3, 5, 3))
sketch9.addConstraint(Sketcher.Constraint("Vertical", 7, 3, 8, 3))
sketch9.addConstraint(Sketcher.Constraint("Vertical", 8, 3, 9, 3))
sketch9.addConstraint(Sketcher.Constraint("Vertical", 6, 3, 10, 3))
sketch9.addConstraint(Sketcher.Constraint("Vertical", 5, 3, 11, 3))
sketch9.addConstraint(Sketcher.Constraint("Vertical", 4, 3, 12, 3))
sketch9.addConstraint(Sketcher.Constraint("Diameter", 0, Q("5 mm")))
sketch9.addConstraint(Sketcher.Constraint("Diameter", 1, Q("2 mm")))
sketch9.addConstraint(Sketcher.Constraint("DistanceY", -1, 1, 0, 3, Q("10 mm")))
sketch9.addConstraint(Sketcher.Constraint("DistanceY", -1, 1, 2, 3, Q("13 mm")))
sketch9.addConstraint(Sketcher.Constraint("DistanceY", -1, 1, 3, 3, Q("7 mm")))
sketch9.addConstraint(Sketcher.Constraint("DistanceY", -1, 1, 4, 3, Q("17 mm")))
sketch9.addConstraint(Sketcher.Constraint("DistanceY", -1, 1, 10, 3, Q("3 mm")))
sketch9.addConstraint(Sketcher.Constraint("DistanceX", 0, 3, 1, 3, Q("7 mm")))
sketch9.addConstraint(Sketcher.Constraint("DistanceX", 4, 3, 2, 3, Q("4 mm")))
sketch9.addConstraint(Sketcher.Constraint("DistanceX", 6, 3, 5, 3, Q("3 mm")))
sketch9.addConstraint(Sketcher.Constraint("DistanceX", 7, 3, 6, 3, Q("4 mm")))
sketch9.addConstraint(Sketcher.Constraint("DistanceX", -1, 1, 0, 3, Q("43.05 mm")))
sketch9.setExpression("Constraints[27]", "Params.sketch9_diameter")
sketch9.setExpression("Constraints[28]", "Params.sketch9_diameter2")
pocket2 = body.newObject("PartDesign::Pocket", "Pocket001")
pocket2.Profile = sketch9
pocket2.setExpression("Length", "Params.pocket2_length")
pocket2.Reversed = True

sketch10 = body.newObject("Sketcher::SketchObject", "Sketch009")
sketch10.AttachmentSupport = (doc.getObject("YZ_Plane"), [""])
sketch10.MapMode = "FlatFace"
sketch10.AttachmentOffset = App.Placement(V(0, 0, 27.6), App.Rotation())
sketch10.addGeometry(Part.Circle(V(43, 10, 0), V(0, 0, 1), 10), False)
sketch10.addConstraint(Sketcher.Constraint("Diameter", 0, Q("20.2 mm")))
sketch10.addConstraint(Sketcher.Constraint("DistanceY", -1, 1, 0, 3, Q("10 mm")))
sketch10.addConstraint(Sketcher.Constraint("DistanceX", -1, 1, 0, 3, Q("43.05 mm")))
sketch10.setExpression("Constraints[0]", "Params.sketch10_diameter")
pocket3 = body.newObject("PartDesign::Pocket", "Pocket002")
pocket3.Profile = sketch10
pocket3.setExpression("Length", "Params.pocket3_length")

sketch11 = body.newObject("Sketcher::SketchObject", "Sketch010")
sketch11.AttachmentSupport = (doc.getObject("XY_Plane"), [""])
sketch11.MapMode = "FlatFace"
sketch11.AttachmentOffset = App.Placement(V(0, 0, -3), App.Rotation())
sketch11.addGeometry(Part.LineSegment(V(25, 55, 0), V(25, 23, 0)), False)
sketch11.addGeometry(Part.LineSegment(V(25, 23, 0), V(-23, 23, 0)), False)
sketch11.addGeometry(Part.LineSegment(V(-23, 23, 0), V(-23, 55, 0)), False)
sketch11.addGeometry(Part.LineSegment(V(-23, 55, 0), V(25, 55, 0)), False)
sketch11.addConstraint(Sketcher.Constraint("Coincident", 0, 2, 1, 1))
sketch11.addConstraint(Sketcher.Constraint("Coincident", 1, 2, 2, 1))
sketch11.addConstraint(Sketcher.Constraint("Coincident", 2, 2, 3, 1))
sketch11.addConstraint(Sketcher.Constraint("Coincident", 3, 2, 0, 1))
sketch11.addConstraint(Sketcher.Constraint("Vertical", 0))
sketch11.addConstraint(Sketcher.Constraint("Horizontal", 1))
sketch11.addConstraint(Sketcher.Constraint("Vertical", 2))
sketch11.addConstraint(Sketcher.Constraint("Horizontal", 3))
sketch11.addConstraint(Sketcher.Constraint("DistanceY", 0, 2, 0, 1, Q("32 mm")))
sketch11.addConstraint(Sketcher.Constraint("DistanceX", 1, 2, 1, 1, Q("47.2 mm")))
sketch11.addConstraint(Sketcher.Constraint("DistanceX", -1, 1, 0, 2, Q("24.6 mm")))
sketch11.addConstraint(Sketcher.Constraint("DistanceY", -1, 1, 0, 2, Q("23.05 mm")))
sketch11.setExpression("Constraints[8]", "Params.sketch11_height")
sketch11.setExpression("Constraints[9]", "Params.sketch11_width")
pocket4 = body.newObject("PartDesign::Pocket", "Pocket003")
pocket4.Profile = sketch11
pocket4.setExpression("Length", "Params.pocket4_length")
pocket4.Reversed = True

sketch12 = body.newObject("Sketcher::SketchObject", "Sketch011")
sketch12.AttachmentSupport = (doc.getObject("YZ_Plane"), [""])
sketch12.MapMode = "FlatFace"
sketch12.AttachmentOffset = App.Placement(V(0, 0, -22.6), App.Rotation())
sketch12.addGeometry(Part.Circle(V(43, 10, 0), V(0, 0, 1), 10), False)
sketch12.addConstraint(Sketcher.Constraint("Diameter", 0, Q("20.2 mm")))
sketch12.addConstraint(Sketcher.Constraint("DistanceY", -1, 1, 0, 3, Q("10 mm")))
sketch12.addConstraint(Sketcher.Constraint("DistanceX", -1, 1, 0, 3, Q("43.05 mm")))
sketch12.setExpression("Constraints[0]", "Params.sketch12_diameter")
pocket5 = body.newObject("PartDesign::Pocket", "Pocket004")
pocket5.Profile = sketch12
pocket5.setExpression("Length", "Params.pocket5_length")

sketch13 = body.newObject("Sketcher::SketchObject", "Sketch012")
sketch13.AttachmentSupport = (doc.getObject("XY_Plane"), [""])
sketch13.MapMode = "FlatFace"
sketch13.AttachmentOffset = App.Placement(V(0, 0, 28), App.Rotation())
sketch13.addGeometry(Part.LineSegment(V(-24.1, 3, 0), V(-24.1, -3, 0)), False)
sketch13.addGeometry(Part.LineSegment(V(-24.1, -3, 0), V(-20.1, -3, 0)), False)
sketch13.addGeometry(Part.LineSegment(V(-20.1, -3, 0), V(-20.1, 3, 0)), False)
sketch13.addGeometry(Part.LineSegment(V(-20.1, 3, 0), V(-24.1, 3, 0)), False)
sketch13.addConstraint(Sketcher.Constraint("Coincident", 0, 2, 1, 1))
sketch13.addConstraint(Sketcher.Constraint("Coincident", 1, 2, 2, 1))
sketch13.addConstraint(Sketcher.Constraint("Coincident", 2, 2, 3, 1))
sketch13.addConstraint(Sketcher.Constraint("Coincident", 3, 2, 0, 1))
sketch13.addConstraint(Sketcher.Constraint("Vertical", 0))
sketch13.addConstraint(Sketcher.Constraint("Horizontal", 1))
sketch13.addConstraint(Sketcher.Constraint("Vertical", 2))
sketch13.addConstraint(Sketcher.Constraint("Horizontal", 3))
sketch13.addConstraint(Sketcher.Constraint("DistanceX", 1, 1, 1, 2, Q("4 mm")))
sketch13.addConstraint(Sketcher.Constraint("DistanceY", 0, 2, 0, 1, Q("6 mm")))
sketch13.addConstraint(Sketcher.Constraint("DistanceY", 0, 2, -1, 1, Q("3 mm")))
sketch13.addConstraint(Sketcher.Constraint("DistanceX", 0, 2, -1, 1, Q("24.05 mm")))
sketch13.setExpression("Constraints[8]", "Params.sketch13_width")
sketch13.setExpression("Constraints[9]", "Params.sketch13_height")
pocket6 = body.newObject("PartDesign::Pocket", "Pocket005")
pocket6.Profile = sketch13
pocket6.setExpression("Length", "Params.pocket6_length")

doc.recompute()
